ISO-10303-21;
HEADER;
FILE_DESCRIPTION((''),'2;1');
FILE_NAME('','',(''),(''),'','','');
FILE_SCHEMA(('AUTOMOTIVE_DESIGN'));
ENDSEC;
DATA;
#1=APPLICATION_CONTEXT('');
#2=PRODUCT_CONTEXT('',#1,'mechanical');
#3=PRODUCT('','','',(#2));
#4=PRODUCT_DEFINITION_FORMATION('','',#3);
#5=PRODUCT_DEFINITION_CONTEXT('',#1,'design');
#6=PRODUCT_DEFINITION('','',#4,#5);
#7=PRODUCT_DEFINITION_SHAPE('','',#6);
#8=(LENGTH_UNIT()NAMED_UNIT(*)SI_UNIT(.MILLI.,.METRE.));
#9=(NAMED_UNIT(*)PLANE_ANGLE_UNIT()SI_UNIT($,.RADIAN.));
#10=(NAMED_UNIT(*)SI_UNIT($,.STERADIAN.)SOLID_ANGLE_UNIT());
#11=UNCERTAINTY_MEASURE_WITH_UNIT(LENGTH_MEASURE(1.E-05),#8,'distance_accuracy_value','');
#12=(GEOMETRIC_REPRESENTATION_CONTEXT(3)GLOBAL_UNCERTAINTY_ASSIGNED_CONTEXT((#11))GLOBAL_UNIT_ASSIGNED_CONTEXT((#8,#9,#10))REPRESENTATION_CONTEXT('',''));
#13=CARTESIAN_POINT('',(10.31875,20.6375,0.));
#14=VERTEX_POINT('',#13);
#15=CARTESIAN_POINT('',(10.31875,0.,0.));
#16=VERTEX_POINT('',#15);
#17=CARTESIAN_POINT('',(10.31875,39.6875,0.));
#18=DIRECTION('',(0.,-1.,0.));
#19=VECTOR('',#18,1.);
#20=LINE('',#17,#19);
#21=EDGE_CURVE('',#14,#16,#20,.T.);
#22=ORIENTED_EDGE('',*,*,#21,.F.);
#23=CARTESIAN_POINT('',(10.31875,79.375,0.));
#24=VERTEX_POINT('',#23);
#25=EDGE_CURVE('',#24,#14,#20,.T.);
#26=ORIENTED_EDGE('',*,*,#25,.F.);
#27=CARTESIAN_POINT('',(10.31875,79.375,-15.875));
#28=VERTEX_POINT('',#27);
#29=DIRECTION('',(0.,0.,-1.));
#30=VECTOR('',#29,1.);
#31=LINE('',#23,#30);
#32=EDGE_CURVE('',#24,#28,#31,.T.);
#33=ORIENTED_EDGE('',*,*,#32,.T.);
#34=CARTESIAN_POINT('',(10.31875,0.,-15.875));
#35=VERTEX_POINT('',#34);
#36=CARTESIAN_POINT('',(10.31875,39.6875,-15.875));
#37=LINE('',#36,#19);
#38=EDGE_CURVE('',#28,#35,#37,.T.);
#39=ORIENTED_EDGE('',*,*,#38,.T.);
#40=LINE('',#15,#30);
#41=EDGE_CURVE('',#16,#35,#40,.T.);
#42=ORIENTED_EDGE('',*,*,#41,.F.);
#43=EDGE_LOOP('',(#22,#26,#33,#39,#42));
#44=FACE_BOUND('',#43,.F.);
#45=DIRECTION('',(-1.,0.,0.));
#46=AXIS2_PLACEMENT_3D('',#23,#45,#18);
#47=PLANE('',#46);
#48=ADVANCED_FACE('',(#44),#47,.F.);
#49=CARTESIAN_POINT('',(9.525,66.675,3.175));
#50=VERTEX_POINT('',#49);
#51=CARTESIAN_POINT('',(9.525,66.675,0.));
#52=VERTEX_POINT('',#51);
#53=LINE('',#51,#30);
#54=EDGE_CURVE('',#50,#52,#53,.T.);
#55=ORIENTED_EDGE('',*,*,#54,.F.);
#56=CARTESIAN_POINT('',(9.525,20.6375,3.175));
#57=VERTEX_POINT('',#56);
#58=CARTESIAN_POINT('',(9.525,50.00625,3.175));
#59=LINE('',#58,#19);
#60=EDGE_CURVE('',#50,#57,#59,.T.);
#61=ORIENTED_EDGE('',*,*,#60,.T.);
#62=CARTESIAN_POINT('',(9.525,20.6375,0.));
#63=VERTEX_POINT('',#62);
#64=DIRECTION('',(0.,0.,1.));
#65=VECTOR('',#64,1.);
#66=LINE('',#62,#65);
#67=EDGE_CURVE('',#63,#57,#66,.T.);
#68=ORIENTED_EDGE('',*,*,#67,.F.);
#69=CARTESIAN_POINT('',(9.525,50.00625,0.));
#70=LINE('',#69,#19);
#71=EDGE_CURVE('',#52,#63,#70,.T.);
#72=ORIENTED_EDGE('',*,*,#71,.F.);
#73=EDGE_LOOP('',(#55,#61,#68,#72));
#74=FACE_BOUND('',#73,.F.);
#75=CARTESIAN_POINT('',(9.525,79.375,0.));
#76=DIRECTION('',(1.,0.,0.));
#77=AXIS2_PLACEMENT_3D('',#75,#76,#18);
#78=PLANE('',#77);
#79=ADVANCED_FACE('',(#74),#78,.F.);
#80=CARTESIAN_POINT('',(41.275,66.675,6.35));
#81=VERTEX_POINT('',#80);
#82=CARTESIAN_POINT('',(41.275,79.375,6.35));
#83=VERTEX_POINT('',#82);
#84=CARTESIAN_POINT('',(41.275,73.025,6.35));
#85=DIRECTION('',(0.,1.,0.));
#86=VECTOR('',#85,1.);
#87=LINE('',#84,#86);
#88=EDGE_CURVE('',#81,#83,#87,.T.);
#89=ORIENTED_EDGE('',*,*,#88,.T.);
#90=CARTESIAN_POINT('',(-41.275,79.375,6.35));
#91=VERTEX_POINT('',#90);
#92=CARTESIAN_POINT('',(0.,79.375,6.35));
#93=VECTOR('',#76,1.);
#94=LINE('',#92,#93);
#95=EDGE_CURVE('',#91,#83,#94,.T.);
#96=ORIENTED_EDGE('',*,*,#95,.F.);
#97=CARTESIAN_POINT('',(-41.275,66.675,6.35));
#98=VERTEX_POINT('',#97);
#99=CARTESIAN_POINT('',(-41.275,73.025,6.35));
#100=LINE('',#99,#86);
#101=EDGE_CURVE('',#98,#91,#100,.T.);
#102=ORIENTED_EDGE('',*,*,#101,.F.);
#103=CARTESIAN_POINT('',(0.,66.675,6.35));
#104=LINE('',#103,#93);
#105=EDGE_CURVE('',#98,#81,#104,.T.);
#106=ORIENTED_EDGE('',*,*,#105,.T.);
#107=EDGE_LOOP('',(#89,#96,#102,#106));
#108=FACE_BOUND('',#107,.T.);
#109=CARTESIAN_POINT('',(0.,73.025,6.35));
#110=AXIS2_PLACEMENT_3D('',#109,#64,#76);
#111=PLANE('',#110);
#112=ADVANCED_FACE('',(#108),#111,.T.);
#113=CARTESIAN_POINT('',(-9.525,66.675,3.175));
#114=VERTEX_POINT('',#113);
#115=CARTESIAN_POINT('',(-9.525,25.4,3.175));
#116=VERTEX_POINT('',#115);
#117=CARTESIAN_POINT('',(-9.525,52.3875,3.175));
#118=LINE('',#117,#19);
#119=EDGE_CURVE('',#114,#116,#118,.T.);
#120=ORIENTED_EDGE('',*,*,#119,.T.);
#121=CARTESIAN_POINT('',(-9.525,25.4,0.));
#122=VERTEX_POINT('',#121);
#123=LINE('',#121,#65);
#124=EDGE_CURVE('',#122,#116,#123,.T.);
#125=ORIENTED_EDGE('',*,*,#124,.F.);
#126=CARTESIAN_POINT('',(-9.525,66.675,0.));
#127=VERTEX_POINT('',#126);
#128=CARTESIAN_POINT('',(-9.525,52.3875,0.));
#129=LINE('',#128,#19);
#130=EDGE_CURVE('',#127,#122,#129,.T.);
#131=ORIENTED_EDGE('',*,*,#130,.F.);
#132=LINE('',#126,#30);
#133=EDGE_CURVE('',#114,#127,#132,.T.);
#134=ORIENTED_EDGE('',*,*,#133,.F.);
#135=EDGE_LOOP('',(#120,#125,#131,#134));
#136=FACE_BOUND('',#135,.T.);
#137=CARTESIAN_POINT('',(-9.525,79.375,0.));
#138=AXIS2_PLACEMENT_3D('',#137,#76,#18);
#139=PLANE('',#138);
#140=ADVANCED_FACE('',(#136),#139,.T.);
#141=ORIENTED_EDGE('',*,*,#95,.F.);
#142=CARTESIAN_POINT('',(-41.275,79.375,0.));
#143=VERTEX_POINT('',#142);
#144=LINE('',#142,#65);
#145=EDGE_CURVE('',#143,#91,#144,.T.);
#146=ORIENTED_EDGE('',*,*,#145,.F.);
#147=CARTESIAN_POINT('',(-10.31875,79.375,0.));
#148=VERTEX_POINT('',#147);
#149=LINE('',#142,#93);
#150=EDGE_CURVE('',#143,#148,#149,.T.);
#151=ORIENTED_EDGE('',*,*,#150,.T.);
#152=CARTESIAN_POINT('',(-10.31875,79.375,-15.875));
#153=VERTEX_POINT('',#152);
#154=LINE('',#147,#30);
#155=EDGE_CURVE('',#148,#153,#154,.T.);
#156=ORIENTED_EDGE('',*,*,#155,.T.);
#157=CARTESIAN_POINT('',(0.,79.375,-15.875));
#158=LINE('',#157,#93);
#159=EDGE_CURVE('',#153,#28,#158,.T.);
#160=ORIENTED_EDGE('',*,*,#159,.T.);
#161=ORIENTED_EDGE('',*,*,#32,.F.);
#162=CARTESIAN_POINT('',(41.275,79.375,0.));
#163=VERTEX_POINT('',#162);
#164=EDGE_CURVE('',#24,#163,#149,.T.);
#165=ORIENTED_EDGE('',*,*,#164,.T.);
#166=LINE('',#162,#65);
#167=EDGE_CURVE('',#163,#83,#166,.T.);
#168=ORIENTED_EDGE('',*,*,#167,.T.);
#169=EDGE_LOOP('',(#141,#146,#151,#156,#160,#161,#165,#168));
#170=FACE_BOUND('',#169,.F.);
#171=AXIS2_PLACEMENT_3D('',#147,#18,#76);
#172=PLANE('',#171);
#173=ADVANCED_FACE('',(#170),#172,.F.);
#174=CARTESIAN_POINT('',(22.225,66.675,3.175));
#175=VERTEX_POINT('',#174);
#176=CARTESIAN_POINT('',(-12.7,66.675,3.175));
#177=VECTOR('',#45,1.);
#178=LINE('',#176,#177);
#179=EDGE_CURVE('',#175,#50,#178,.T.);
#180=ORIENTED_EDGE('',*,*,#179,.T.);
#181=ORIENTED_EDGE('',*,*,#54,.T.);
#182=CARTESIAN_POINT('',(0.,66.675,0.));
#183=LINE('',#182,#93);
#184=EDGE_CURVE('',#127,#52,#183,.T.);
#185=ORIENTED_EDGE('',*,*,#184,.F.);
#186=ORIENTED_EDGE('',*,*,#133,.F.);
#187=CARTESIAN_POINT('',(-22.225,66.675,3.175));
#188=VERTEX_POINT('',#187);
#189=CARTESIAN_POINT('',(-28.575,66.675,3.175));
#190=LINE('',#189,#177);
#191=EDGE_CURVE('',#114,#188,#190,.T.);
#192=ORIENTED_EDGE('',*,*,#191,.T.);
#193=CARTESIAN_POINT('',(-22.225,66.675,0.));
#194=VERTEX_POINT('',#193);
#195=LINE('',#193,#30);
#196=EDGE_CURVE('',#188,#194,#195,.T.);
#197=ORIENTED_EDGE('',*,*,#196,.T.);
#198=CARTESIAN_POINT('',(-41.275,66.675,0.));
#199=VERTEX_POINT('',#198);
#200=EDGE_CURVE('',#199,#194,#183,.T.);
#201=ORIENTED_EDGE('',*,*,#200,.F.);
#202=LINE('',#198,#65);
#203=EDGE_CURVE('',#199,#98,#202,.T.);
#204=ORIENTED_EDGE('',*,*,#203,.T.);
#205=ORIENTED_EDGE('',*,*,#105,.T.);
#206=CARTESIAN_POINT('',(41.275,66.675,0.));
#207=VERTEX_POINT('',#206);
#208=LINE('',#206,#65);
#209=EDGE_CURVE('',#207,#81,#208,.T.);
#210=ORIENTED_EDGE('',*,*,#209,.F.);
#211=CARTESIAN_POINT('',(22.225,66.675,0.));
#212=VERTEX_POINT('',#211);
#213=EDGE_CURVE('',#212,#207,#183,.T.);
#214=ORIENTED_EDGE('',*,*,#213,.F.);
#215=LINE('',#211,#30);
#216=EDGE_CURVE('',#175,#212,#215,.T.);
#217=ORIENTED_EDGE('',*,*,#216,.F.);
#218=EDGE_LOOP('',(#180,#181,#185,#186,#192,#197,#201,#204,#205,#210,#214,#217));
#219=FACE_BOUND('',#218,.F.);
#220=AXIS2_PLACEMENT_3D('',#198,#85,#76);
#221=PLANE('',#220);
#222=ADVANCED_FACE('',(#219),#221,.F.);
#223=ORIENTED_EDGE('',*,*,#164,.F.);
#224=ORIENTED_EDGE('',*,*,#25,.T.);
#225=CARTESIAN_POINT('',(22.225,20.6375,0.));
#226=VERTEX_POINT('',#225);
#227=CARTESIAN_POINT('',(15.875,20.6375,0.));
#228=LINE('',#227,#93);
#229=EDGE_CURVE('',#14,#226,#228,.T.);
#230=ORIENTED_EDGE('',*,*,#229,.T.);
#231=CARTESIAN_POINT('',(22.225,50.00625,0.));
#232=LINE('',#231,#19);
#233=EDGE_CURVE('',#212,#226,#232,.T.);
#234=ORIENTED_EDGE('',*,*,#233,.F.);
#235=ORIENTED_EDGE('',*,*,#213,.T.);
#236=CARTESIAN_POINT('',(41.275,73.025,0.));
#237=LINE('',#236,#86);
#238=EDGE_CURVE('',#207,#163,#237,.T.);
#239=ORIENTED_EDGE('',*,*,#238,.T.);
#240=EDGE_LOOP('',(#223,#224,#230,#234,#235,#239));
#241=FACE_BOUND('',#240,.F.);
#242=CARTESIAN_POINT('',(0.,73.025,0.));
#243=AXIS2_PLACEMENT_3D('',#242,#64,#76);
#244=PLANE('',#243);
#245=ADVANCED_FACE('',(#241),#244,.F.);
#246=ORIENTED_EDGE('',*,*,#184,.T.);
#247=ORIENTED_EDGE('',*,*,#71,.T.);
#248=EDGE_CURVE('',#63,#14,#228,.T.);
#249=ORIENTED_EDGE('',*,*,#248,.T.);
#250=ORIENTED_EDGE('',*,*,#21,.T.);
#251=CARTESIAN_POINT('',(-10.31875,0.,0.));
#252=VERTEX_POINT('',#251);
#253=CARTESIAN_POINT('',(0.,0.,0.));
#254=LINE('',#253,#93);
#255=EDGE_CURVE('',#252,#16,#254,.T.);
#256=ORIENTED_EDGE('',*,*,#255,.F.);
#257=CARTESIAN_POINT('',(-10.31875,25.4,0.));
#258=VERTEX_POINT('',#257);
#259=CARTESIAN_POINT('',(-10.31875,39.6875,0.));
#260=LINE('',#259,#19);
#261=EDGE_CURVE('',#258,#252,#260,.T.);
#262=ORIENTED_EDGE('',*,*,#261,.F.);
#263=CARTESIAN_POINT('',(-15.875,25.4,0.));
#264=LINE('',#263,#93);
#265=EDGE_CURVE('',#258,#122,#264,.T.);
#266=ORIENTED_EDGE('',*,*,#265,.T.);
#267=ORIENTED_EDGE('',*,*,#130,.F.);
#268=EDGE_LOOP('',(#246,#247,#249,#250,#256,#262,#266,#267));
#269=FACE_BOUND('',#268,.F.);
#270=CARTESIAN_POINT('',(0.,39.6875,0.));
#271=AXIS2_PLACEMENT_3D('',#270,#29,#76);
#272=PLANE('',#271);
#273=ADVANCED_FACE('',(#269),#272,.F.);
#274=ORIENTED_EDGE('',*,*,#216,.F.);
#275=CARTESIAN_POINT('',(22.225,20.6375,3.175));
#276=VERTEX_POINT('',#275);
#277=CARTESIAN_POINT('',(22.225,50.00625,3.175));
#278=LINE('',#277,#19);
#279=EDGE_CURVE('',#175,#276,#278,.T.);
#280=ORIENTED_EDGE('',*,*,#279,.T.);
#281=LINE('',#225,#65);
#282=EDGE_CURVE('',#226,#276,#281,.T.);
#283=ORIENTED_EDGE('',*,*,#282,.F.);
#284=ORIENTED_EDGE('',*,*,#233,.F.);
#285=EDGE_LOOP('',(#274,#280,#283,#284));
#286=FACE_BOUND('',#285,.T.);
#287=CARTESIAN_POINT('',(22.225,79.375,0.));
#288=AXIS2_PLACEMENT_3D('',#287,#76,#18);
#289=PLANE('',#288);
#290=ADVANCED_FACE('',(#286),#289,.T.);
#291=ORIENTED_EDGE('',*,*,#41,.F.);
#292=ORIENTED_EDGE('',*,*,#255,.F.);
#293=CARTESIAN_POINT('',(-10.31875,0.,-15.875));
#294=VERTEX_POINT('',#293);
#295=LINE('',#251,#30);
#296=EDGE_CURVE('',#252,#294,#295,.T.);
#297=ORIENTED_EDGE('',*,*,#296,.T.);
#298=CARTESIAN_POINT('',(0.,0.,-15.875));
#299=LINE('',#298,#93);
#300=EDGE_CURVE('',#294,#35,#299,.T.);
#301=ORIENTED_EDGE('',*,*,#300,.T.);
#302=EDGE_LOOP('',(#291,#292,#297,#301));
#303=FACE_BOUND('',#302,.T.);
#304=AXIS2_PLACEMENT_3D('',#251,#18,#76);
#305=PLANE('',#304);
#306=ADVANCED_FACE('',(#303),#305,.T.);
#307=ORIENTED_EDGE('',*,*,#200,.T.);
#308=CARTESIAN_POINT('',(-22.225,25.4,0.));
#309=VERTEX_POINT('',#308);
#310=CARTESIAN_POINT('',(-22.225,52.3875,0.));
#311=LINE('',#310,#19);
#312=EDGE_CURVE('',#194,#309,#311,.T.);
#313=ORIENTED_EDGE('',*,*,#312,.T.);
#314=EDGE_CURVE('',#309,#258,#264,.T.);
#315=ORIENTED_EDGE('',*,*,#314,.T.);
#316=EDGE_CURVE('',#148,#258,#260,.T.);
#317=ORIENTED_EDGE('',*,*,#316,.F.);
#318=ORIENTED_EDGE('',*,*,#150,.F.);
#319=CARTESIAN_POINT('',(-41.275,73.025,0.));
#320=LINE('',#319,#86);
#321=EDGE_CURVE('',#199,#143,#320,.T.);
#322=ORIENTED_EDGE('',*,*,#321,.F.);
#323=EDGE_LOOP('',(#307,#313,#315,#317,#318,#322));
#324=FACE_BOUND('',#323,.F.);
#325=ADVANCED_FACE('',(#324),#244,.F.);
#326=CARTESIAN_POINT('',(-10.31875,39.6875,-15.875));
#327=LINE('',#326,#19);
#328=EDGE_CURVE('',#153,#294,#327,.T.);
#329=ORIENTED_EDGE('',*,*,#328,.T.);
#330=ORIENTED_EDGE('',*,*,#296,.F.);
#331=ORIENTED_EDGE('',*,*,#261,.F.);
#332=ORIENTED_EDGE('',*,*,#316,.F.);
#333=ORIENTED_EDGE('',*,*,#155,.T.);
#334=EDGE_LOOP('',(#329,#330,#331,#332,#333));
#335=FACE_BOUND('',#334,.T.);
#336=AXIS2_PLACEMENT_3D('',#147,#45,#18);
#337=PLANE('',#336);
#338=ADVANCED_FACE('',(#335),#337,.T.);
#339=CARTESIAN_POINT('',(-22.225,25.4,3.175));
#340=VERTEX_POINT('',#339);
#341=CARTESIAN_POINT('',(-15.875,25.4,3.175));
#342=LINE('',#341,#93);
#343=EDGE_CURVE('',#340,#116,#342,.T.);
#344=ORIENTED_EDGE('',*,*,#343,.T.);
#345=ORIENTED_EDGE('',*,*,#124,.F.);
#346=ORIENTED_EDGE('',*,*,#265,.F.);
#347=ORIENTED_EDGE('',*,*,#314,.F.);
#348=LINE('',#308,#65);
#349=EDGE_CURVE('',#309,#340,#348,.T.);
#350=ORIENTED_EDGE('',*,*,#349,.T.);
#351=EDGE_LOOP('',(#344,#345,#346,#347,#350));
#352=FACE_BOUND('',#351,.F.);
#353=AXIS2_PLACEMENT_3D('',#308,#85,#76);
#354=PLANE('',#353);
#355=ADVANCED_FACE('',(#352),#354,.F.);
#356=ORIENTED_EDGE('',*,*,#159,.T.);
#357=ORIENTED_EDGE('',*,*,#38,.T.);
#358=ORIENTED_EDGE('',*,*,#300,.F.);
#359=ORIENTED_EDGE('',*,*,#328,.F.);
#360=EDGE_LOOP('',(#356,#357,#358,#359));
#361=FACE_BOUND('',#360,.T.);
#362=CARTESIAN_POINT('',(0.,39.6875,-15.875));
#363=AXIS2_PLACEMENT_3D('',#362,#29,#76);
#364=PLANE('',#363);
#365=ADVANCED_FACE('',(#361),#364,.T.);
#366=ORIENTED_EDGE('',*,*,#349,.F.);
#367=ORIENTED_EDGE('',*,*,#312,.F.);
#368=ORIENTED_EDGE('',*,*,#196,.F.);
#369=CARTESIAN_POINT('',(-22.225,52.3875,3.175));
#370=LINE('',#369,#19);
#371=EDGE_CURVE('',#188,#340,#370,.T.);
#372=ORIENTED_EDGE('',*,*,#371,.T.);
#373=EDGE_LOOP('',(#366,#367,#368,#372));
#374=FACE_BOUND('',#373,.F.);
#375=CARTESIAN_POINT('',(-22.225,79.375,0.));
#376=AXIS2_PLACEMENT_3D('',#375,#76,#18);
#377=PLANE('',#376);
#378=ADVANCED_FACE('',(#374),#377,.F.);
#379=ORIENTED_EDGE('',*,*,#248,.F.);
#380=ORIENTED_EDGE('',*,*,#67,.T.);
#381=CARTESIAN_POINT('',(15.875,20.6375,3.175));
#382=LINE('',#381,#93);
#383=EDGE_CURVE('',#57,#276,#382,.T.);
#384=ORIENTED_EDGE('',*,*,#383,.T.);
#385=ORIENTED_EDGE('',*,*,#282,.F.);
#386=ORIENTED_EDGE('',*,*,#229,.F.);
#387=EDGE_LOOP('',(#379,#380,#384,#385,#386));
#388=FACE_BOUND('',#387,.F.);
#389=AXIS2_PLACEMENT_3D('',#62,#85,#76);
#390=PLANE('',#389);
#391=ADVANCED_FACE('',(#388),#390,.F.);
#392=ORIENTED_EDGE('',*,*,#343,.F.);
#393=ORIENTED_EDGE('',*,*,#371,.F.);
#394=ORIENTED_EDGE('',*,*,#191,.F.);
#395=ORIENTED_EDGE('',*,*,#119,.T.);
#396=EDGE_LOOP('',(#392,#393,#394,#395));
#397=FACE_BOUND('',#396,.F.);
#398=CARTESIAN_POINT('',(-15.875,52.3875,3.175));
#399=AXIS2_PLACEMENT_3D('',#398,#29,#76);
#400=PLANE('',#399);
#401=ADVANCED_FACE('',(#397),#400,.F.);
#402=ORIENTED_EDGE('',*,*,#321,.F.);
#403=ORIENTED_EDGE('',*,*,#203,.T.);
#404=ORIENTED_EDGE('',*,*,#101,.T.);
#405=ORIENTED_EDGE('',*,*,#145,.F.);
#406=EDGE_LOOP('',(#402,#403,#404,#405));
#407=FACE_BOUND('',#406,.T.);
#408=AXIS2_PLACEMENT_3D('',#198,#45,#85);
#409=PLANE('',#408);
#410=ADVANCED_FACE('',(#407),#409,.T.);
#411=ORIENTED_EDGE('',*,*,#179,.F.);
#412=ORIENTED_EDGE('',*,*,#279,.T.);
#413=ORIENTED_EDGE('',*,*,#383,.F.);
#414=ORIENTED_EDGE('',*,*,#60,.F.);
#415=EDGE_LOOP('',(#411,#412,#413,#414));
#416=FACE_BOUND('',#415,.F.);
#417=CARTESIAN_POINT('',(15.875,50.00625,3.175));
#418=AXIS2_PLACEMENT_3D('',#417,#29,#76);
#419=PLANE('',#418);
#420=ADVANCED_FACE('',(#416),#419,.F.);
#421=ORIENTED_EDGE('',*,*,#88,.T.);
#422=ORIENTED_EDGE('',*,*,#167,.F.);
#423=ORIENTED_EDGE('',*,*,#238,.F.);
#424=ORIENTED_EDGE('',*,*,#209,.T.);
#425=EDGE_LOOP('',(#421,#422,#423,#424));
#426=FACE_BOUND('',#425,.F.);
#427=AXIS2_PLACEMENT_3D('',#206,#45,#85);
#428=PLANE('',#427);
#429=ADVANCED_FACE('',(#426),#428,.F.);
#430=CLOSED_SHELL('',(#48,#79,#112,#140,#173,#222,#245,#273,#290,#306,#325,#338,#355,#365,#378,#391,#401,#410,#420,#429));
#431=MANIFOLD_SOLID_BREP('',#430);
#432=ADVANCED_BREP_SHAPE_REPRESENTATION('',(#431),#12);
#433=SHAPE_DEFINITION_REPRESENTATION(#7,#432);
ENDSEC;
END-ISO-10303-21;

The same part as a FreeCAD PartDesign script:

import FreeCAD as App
import Part
import Sketcher
from FreeCAD import Vector
Q = App.Units.Quantity

doc = App.newDocument("Part")
params = doc.addObject("Spreadsheet::Sheet", "Params")
for row, (alias, value) in enumerate([
    ("sketch1_height", "0.5 in"),
    ("sketch1_width", "3.25 in"),
    ("pad1_length", "0.25 in"),
    ("sketch2_width", "0.5 in"),
    ("sketch2_height", "2.125 in"),
    ("sketch2_height2", "2.3125 in"),
    ("pad2_length", "0.125 in"),
    ("sketch3_width", "0.8125 in"),
    ("sketch3_height", "3.125 in"),
    ("pad3_length", "0.625 in"),
], start=1):
    params.set(f"A{row}", alias)
    params.set(f"B{row}", "=" + value)
    params.setAlias(f"B{row}", alias)

body = doc.addObject("PartDesign::Body", "Body")

# Sketch on XY plane
sketch1 = body.newObject("Sketcher::SketchObject", "Sketch")
sketch1.AttachmentSupport = (doc.getObject("XY_Plane"), [""])
sketch1.MapMode = "FlatFace"
sketch1.addGeometry([
    Part.LineSegment(Vector(-41, 79, 0), Vector(-41, 67, 0)),
    Part.LineSegment(Vector(-41, 67, 0), Vector(41, 67, 0)),
    Part.LineSegment(Vector(41, 67, 0), Vector(41, 79, 0)),
    Part.LineSegment(Vector(41, 79, 0), Vector(-41, 79, 0)),
], False)
sketch1.addConstraint([
    Sketcher.Constraint("Coincident", 0, 2, 1, 1),
    Sketcher.Constraint("Coincident", 1, 2, 2, 1),
    Sketcher.Constraint("Coincident", 2, 2, 3, 1),
    Sketcher.Constraint("Coincident", 3, 2, 0, 1),
    Sketcher.Constraint("Vertical", 0),
    Sketcher.Constraint("Horizontal", 1),
    Sketcher.Constraint("Vertical", 2),
    Sketcher.Constraint("Horizontal", 3),
    Sketcher.Constraint("DistanceY", 0, 2, 0, 1, Q("0.5 in")),
    Sketcher.Constraint("DistanceX", 1, 1, 1, 2, Q("3.25 in")),
    Sketcher.Constraint("DistanceX", 0, 2, -1, 1, Q("1.625 in")),
    Sketcher.Constraint("DistanceY", -1, 1, 0, 2, Q("2.625 in")),
])
sketch1.setExpression("Constraints[8]", "Params.sketch1_height")
sketch1.setExpression("Constraints[9]", "Params.sketch1_width")
pad1 = body.newObject("PartDesign::Pad", "Pad")
pad1.Profile = sketch1
pad1.setExpression("Length", "Params.pad1_length")

# Sketch on XY plane
sketch2 = body.newObject("Sketcher::SketchObject", "Sketch001")
sketch2.AttachmentSupport = (doc.getObject("XY_Plane"), [""])
sketch2.MapMode = "FlatFace"
sketch2.addGeometry([
    Part.LineSegment(Vector(-22, 25, 0), Vector(-22, 79, 0)),  # 0
    Part.LineSegment(Vector(-22, 79, 0), Vector(-10, 79, 0)),  # 1
    Part.LineSegment(Vector(-10, 79, 0), Vector(-10, 25, 0)),  # 2
    Part.LineSegment(Vector(-10, 25, 0), Vector(-22, 25, 0)),  # 3
    Part.LineSegment(Vector(10, 21, 0), Vector(10, 79, 0)),  # 4
    Part.LineSegment(Vector(10, 79, 0), Vector(22, 79, 0)),  # 5
    Part.LineSegment(Vector(22, 79, 0), Vector(22, 21, 0)),  # 6
    Part.LineSegment(Vector(22, 21, 0), Vector(10, 21, 0)),  # 7
], False)
sketch2.addConstraint([
    Sketcher.Constraint("Coincident", 0, 2, 1, 1),
    Sketcher.Constraint("Coincident", 1, 2, 2, 1),
    Sketcher.Constraint("Coincident", 2, 2, 3, 1),
    Sketcher.Constraint("Coincident", 3, 2, 0, 1),
    Sketcher.Constraint("Coincident", 4, 2, 5, 1),
    Sketcher.Constraint("Coincident", 5, 2, 6, 1),
    Sketcher.Constraint("Coincident", 6, 2, 7, 1),
    Sketcher.Constraint("Coincident", 7, 2, 4, 1),
    Sketcher.Constraint("Vertical", 0),
    Sketcher.Constraint("Horizontal", 1),
    Sketcher.Constraint("Vertical", 2),
    Sketcher.Constraint("Horizontal", 3),
    Sketcher.Constraint("Vertical", 4),
    Sketcher.Constraint("Horizontal", 5),
    Sketcher.Constraint("Vertical", 6),
    Sketcher.Constraint("Horizontal", 7),
    Sketcher.Constraint("Symmetric", 1, 2, 4, 2, -2),
    Sketcher.Constraint("Equal", 3, 5),
    Sketcher.Constraint("DistanceX", 1, 1, 1, 2, Q("0.5 in")),
    Sketcher.Constraint("DistanceY", -1, 1, 2, 2, Q("1 in")),
    Sketcher.Constraint("DistanceY", 0, 1, 0, 2, Q("2.125 in")),
    Sketcher.Constraint("DistanceY", 4, 1, 4, 2, Q("2.3125 in")),
    Sketcher.Constraint("DistanceX", 1, 2, 4, 2, Q("0.75 in")),
])
sketch2.setExpression("Constraints[18]", "Params.sketch2_width")
sketch2.setExpression("Constraints[20]", "Params.sketch2_height")
sketch2.setExpression("Constraints[21]", "Params.sketch2_height2")
pad2 = body.newObject("PartDesign::Pad", "Pad001")
pad2.Profile = sketch2
pad2.setExpression("Length", "Params.pad2_length")

# Sketch on XY plane
sketch3 = body.newObject("Sketcher::SketchObject", "Sketch002")
sketch3.AttachmentSupport = (doc.getObject("XY_Plane"), [""])
sketch3.MapMode = "FlatFace"
sketch3.addGeometry([
    Part.LineSegment(Vector(-10, 0, 0), Vector(-10, 79, 0)),
    Part.LineSegment(Vector(-10, 79, 0), Vector(10, 79, 0)),
    Part.LineSegment(Vector(10, 79, 0), Vector(10, 0, 0)),
    Part.LineSegment(Vector(10, 0, 0), Vector(-10, 0, 0)),
], False)
sketch3.addConstraint([
    Sketcher.Constraint("Coincident", 0, 2, 1, 1),
    Sketcher.Constraint("Coincident", 1, 2, 2, 1),
    Sketcher.Constraint("Coincident", 2, 2, 3, 1),
    Sketcher.Constraint("Coincident", 3, 2, 0, 1),
    Sketcher.Constraint("Vertical", 0),
    Sketcher.Constraint("Horizontal", 1),
    Sketcher.Constraint("Vertical", 2),
    Sketcher.Constraint("Horizontal", 3),
    Sketcher.Constraint("Symmetric", 2, 2, 3, 2, -1, 1),
    Sketcher.Constraint("DistanceX", 1, 1, 1, 2, Q("0.8125 in")),
    Sketcher.Constraint("DistanceY", 0, 1, 0, 2, Q("3.125 in")),
])
sketch3.setExpression("Constraints[9]", "Params.sketch3_width")
sketch3.setExpression("Constraints[10]", "Params.sketch3_height")
pad3 = body.newObject("PartDesign::Pad", "Pad002")
pad3.Profile = sketch3
pad3.setExpression("Length", "Params.pad3_length")
pad3.Reversed = True

doc.recompute()
